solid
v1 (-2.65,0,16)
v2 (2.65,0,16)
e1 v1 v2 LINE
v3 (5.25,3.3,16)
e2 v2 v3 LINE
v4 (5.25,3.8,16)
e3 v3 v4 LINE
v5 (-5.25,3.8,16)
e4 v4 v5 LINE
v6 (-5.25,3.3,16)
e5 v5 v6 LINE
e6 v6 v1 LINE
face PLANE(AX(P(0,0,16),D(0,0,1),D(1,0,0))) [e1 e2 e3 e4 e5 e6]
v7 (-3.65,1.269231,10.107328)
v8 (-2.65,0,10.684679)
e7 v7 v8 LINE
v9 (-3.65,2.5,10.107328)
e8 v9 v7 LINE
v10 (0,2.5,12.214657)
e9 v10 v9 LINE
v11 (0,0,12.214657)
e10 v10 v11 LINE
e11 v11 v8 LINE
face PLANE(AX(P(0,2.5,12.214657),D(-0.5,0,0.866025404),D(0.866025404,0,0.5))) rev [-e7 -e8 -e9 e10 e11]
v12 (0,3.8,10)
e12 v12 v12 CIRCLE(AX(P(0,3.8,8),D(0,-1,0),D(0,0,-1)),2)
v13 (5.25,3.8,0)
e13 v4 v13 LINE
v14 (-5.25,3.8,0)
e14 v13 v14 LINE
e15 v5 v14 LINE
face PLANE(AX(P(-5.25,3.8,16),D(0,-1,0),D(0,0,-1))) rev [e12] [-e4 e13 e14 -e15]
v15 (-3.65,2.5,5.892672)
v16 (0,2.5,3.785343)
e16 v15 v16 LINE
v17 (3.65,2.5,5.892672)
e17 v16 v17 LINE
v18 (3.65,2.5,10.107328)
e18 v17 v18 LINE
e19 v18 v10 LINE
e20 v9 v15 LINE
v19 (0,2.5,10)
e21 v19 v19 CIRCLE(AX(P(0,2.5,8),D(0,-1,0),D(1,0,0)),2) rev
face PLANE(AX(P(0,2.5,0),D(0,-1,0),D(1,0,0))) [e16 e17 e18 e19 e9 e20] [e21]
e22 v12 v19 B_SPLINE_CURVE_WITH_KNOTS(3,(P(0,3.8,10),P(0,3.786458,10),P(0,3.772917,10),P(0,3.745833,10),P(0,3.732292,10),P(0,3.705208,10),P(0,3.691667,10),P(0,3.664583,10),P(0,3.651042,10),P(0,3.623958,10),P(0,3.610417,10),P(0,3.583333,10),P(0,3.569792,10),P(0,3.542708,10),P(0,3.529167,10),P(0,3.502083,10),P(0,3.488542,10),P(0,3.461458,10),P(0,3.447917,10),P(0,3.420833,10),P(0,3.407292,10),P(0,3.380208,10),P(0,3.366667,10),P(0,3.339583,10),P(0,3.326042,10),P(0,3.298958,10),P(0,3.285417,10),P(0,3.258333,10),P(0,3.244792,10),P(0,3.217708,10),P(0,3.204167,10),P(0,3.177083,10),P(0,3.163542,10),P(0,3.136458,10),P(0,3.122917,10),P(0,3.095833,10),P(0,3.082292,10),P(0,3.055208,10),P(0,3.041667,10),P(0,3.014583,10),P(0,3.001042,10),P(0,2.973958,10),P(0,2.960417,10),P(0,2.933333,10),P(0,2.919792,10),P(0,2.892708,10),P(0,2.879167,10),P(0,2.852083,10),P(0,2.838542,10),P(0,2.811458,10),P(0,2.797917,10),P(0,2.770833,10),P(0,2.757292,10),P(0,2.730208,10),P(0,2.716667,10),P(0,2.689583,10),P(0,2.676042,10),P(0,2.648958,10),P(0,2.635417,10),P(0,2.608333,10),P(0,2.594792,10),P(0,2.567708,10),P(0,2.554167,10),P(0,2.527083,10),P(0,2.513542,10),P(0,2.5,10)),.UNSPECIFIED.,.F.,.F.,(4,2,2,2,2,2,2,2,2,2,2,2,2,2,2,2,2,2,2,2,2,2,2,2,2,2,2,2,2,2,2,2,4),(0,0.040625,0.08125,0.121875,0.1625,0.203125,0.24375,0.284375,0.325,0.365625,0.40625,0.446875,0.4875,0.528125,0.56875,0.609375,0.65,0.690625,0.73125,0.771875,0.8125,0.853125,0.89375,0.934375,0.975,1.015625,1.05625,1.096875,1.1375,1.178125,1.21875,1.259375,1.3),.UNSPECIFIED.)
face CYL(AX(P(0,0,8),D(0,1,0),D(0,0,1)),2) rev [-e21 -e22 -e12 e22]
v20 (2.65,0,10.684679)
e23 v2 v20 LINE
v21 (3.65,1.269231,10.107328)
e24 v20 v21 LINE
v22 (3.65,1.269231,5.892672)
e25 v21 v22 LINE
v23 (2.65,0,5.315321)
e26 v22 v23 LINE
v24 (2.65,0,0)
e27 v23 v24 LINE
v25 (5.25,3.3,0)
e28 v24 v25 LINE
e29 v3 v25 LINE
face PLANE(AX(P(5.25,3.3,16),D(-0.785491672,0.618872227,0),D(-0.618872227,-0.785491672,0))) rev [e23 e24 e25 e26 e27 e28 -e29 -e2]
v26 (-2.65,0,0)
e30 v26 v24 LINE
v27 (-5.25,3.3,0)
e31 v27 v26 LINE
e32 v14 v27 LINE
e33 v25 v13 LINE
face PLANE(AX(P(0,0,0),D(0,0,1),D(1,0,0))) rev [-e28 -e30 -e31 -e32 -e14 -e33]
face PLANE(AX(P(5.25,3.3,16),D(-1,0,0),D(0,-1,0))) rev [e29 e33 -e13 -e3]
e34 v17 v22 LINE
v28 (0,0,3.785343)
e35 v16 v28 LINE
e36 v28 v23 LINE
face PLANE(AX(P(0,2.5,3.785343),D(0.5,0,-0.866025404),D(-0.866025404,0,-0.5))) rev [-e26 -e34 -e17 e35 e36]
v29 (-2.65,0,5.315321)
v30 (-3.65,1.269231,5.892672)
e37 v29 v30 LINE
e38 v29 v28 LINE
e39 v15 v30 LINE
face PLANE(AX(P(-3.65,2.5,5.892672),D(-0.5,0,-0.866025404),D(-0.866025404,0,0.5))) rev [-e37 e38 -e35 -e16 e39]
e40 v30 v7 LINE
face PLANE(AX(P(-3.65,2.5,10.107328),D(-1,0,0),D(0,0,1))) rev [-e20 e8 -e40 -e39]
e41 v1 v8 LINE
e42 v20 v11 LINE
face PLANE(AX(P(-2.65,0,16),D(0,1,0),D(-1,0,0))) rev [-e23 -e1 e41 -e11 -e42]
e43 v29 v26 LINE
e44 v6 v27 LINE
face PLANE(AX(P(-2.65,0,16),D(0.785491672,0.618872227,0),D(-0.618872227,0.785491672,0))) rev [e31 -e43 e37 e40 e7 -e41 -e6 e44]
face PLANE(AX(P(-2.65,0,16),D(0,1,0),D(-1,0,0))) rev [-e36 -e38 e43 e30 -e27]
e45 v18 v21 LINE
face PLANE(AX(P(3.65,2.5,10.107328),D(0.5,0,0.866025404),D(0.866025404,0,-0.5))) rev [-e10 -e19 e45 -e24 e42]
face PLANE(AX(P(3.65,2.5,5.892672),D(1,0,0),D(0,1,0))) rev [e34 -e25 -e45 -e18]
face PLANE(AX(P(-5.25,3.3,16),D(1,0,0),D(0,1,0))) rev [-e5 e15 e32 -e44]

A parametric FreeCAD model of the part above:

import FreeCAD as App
import Part
import Sketcher
Q = App.Units.Quantity

doc = App.newDocument("Part")
body = doc.addObject("PartDesign::Body", "Body")

# Sketch on XY plane
sketch1 = doc.addObject("Sketcher::SketchObject", "Sketch")
body.addObject(sketch1)
sketch1.AttachmentSupport = (doc.XY_Plane, [""])
sketch1.MapMode = "FlatFace"
sketch1.addGeometry(Part.LineSegment(App.Vector(-2.65, 0, 0), App.Vector(2.65, 0, 0)), False)
sketch1.addGeometry(Part.LineSegment(App.Vector(2.65, 0, 0), App.Vector(5.25, 3.3, 0)), False)
sketch1.addGeometry(Part.LineSegment(App.Vector(5.25, 3.3, 0), App.Vector(5.25, 3.8, 0)), False)
sketch1.addGeometry(Part.LineSegment(App.Vector(5.25, 3.8, 0), App.Vector(-5.25, 3.8, 0)), False)
sketch1.addGeometry(Part.LineSegment(App.Vector(-5.25, 3.8, 0), App.Vector(-5.25, 3.3, 0)), False)
sketch1.addGeometry(Part.LineSegment(App.Vector(-5.25, 3.3, 0), App.Vector(-2.65, 0, 0)), False)
sketch1.addConstraint(Sketcher.Constraint("Coincident", 0, 2, 1, 1))
sketch1.addConstraint(Sketcher.Constraint("Coincident", 1, 2, 2, 1))
sketch1.addConstraint(Sketcher.Constraint("Coincident", 2, 2, 3, 1))
sketch1.addConstraint(Sketcher.Constraint("Coincident", 3, 2, 4, 1))
sketch1.addConstraint(Sketcher.Constraint("Coincident", 4, 2, 5, 1))
sketch1.addConstraint(Sketcher.Constraint("Coincident", 5, 2, 0, 1))
sketch1.addConstraint(Sketcher.Constraint("Horizontal", 0))
sketch1.addConstraint(Sketcher.Constraint("Vertical", 2))
sketch1.addConstraint(Sketcher.Constraint("Horizontal", 3))
sketch1.addConstraint(Sketcher.Constraint("Vertical", 4))
sketch1.addConstraint(Sketcher.Constraint("Symmetric", 0, 2, 5, 2, -1, 1))
sketch1.addConstraint(Sketcher.Constraint("Symmetric", 1, 2, 4, 2, -2))
sketch1.addConstraint(Sketcher.Constraint("DistanceX", 0, 1, 0, 2, Q("5.3 mm")))
sketch1.addConstraint(Sketcher.Constraint("DistanceX", 3, 2, 3, 1, Q("10.5 mm")))
sketch1.addConstraint(Sketcher.Constraint("DistanceY", 2, 1, 2, 2, Q("0.5 mm")))
sketch1.addConstraint(Sketcher.Constraint("DistanceY", -1, 1, 1, 2, Q("3.3 mm")))
pad1 = doc.addObject("PartDesign::Pad", "Pad")
body.addObject(pad1)
pad1.Profile = sketch1
pad1.Length = 16

# Sketch on XZ plane
sketch2 = doc.addObject("Sketcher::SketchObject", "Sketch001")
body.addObject(sketch2)
sketch2.AttachmentSupport = (doc.XZ_Plane, [""])
sketch2.MapMode = "FlatFace"
sketch2.AttachmentOffset = App.Placement(App.Vector(0, 0, -3.8), App.Rotation())
sketch2.addGeometry(Part.Circle(App.Vector(0, 8, 0), App.Vector(0, 0, 1), 2), False)
sketch2.addConstraint(Sketcher.Constraint("PointOnObject", 0, 3, -2))
sketch2.addConstraint(Sketcher.Constraint("Diameter", 0, Q("4 mm")))
sketch2.addConstraint(Sketcher.Constraint("DistanceY", -1, 1, 0, 3, Q("8 mm")))
pocket1 = doc.addObject("PartDesign::Pocket", "Pocket")
body.addObject(pocket1)
pocket1.Profile = sketch2
pocket1.Type = "ThroughAll"
pocket1.Midplane = True

# Sketch on XZ plane
sketch3 = doc.addObject("Sketcher::SketchObject", "Sketch002")
body.addObject(sketch3)
sketch3.AttachmentSupport = (doc.XZ_Plane, [""])
sketch3.MapMode = "FlatFace"
sketch3.addGeometry(Part.LineSegment(App.Vector(0, 12.214657, 0), App.Vector(-3.65, 10.107328, 0)), False)
sketch3.addGeometry(Part.LineSegment(App.Vector(-3.65, 10.107328, 0), App.Vector(-3.65, 5.892672, 0)), False)
sketch3.addGeometry(Part.LineSegment(App.Vector(-3.65, 5.892672, 0), App.Vector(0, 3.785343, 0)), False)
sketch3.addGeometry(Part.LineSegment(App.Vector(0, 3.785343, 0), App.Vector(3.65, 5.892672, 0)), False)
sketch3.addGeometry(Part.LineSegment(App.Vector(3.65, 5.892672, 0), App.Vector(3.65, 10.107328, 0)), False)
sketch3.addGeometry(Part.LineSegment(App.Vector(3.65, 10.107328, 0), App.Vector(0, 12.214657, 0)), False)
sketch3.addConstraint(Sketcher.Constraint("Coincident", 0, 2, 1, 1))
sketch3.addConstraint(Sketcher.Constraint("Coincident", 1, 2, 2, 1))
sketch3.addConstraint(Sketcher.Constraint("Coincident", 2, 2, 3, 1))
sketch3.addConstraint(Sketcher.Constraint("Coincident", 3, 2, 4, 1))
sketch3.addConstraint(Sketcher.Constraint("Coincident", 4, 2, 5, 1))
sketch3.addConstraint(Sketcher.Constraint("Coincident", 5, 2, 0, 1))
sketch3.addConstraint(Sketcher.Constraint("Vertical", 1))
sketch3.addConstraint(Sketcher.Constraint("Vertical", 4))
sketch3.addConstraint(Sketcher.Constraint("Symmetric", 1, 2, 3, 2, -2))
sketch3.addConstraint(Sketcher.Constraint("PointOnObject", 2, 2, -2))
sketch3.addConstraint(Sketcher.Constraint("PointOnObject", 5, 2, -2))
sketch3.addConstraint(Sketcher.Constraint("Parallel", 0, 3))
sketch3.addConstraint(Sketcher.Constraint("Parallel", 2, 5))
sketch3.addConstraint(Sketcher.Constraint("Angle", 0, Q("-150 deg")))
sketch3.addConstraint(Sketcher.Constraint("DistanceX", 1, 2, 3, 2, Q("7.3 mm")))
sketch3.addConstraint(Sketcher.Constraint("DistanceY", 1, 2, 1, 1, Q("4.214657 mm")))
sketch3.addConstraint(Sketcher.Constraint("DistanceY", -1, 1, 0, 2, Q("10.107328 mm")))
pocket2 = doc.addObject("PartDesign::Pocket", "Pocket001")
body.addObject(pocket2)
pocket2.Profile = sketch3
pocket2.Length = 2.5

doc.recompute()
